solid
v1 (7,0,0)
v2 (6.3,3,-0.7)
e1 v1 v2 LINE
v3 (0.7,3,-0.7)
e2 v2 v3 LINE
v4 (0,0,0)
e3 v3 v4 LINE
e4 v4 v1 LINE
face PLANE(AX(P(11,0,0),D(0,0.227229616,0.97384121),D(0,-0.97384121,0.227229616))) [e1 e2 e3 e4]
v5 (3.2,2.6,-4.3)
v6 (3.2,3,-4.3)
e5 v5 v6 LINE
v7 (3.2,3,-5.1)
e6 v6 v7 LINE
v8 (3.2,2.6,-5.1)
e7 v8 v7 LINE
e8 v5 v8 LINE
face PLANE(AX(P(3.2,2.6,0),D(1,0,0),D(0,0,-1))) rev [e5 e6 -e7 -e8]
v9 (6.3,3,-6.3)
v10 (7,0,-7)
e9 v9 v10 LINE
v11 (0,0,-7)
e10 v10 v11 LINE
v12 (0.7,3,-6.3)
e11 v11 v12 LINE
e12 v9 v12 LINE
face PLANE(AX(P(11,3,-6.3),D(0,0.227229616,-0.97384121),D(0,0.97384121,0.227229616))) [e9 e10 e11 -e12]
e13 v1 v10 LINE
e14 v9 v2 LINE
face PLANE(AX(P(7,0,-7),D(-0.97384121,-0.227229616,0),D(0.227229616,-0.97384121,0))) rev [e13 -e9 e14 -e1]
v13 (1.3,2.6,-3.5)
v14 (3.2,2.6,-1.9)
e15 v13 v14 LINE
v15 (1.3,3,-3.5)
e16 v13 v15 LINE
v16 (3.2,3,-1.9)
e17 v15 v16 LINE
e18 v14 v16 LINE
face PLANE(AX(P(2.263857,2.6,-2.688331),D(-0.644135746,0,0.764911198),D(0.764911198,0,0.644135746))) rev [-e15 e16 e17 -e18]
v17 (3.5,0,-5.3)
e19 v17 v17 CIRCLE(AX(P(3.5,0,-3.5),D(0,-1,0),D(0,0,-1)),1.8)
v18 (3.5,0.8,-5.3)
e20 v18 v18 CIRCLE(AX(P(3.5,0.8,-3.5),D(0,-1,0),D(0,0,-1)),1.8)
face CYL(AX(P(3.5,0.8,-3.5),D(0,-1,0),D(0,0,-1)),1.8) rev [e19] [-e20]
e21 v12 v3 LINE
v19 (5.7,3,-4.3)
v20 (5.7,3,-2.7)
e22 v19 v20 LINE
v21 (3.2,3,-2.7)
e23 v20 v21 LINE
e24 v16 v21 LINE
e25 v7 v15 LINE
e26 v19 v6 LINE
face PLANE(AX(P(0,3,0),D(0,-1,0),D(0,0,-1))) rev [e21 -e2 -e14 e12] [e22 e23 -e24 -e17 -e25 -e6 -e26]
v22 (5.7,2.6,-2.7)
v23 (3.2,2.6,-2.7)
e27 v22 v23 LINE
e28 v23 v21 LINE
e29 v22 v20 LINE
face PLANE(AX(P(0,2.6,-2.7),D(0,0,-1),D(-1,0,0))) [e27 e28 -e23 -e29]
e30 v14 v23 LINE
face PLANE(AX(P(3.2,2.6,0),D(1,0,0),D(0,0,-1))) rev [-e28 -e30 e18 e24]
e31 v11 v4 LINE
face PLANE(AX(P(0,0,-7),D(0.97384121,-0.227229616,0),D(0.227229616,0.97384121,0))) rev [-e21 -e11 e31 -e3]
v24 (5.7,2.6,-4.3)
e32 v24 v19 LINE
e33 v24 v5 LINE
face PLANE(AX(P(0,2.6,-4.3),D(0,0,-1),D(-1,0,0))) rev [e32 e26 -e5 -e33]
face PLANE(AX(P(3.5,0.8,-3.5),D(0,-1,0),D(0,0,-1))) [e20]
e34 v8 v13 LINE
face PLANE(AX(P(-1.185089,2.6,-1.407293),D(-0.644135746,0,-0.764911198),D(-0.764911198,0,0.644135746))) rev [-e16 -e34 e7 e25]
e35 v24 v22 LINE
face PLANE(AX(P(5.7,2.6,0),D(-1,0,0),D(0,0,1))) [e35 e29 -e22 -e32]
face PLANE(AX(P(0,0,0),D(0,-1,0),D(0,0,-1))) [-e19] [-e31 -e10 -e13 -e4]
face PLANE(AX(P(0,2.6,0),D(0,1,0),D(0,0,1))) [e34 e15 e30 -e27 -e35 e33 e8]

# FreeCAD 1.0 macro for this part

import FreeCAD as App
import Part
import Sketcher
Q = App.Units.Quantity


def add_polygon(sketch, points):
    """Adds a closed chain of lines whose ends are joined by coincident constraints."""
    first, n = sketch.GeometryCount, len(points)
    for a, b in zip(points, points[1:] + points[:1]):
        sketch.addGeometry(Part.LineSegment(App.Vector(*a, 0), App.Vector(*b, 0)), False)
    for i in range(n):
        sketch.addConstraint(Sketcher.Constraint("Coincident", first + i, 2, first + (i + 1) % n, 1))

doc = App.newDocument("Part")
body = doc.addObject("PartDesign::Body", "Body")

sketch1 = body.newObject("Sketcher::SketchObject", "Sketch")
sketch1.AttachmentSupport = (doc.getObject("XZ_Plane"), [""])
sketch1.MapMode = "FlatFace"
add_polygon(sketch1, [(0, -7), (0, 0), (7, 0), (7, -7)])
sketch1.addConstraint(Sketcher.Constraint("Vertical", 0))
sketch1.addConstraint(Sketcher.Constraint("Horizontal", 1))
sketch1.addConstraint(Sketcher.Constraint("Vertical", 2))
sketch1.addConstraint(Sketcher.Constraint("Horizontal", 3))
sketch1.addConstraint(Sketcher.Constraint("Coincident", 0, 2, -1, 1))
sketch1.addConstraint(Sketcher.Constraint("Equal", 3, 0))
sketch1.addConstraint(Sketcher.Constraint("DistanceX", 1, 1, 1, 2, Q("7 mm")))
pad1 = body.newObject("PartDesign::Pad", "Pad")
pad1.Profile = sketch1
pad1.Length = 3
pad1.Reversed = True

sketch2 = body.newObject("Sketcher::SketchObject", "Sketch001")
sketch2.AttachmentSupport = (doc.getObject("XY_Plane"), [""])
sketch2.MapMode = "FlatFace"
add_polygon(sketch2, [(0, 0), (0.7, 3), (0, 3)])
add_polygon(sketch2, [(6.3, 3), (7, 0), (7, 3)])
sketch2.addConstraint(Sketcher.Constraint("Horizontal", 1))
sketch2.addConstraint(Sketcher.Constraint("Vertical", 2))
sketch2.addConstraint(Sketcher.Constraint("Vertical", 4))
sketch2.addConstraint(Sketcher.Constraint("Horizontal", 5))
sketch2.addConstraint(Sketcher.Constraint("Coincident", 2, 2, -1, 1))
sketch2.addConstraint(Sketcher.Constraint("PointOnObject", 3, 2, -1))
sketch2.addConstraint(Sketcher.Constraint("Horizontal", 1, 2, 4, 2))
sketch2.addConstraint(Sketcher.Constraint("Equal", 1, 5))
sketch2.addConstraint(Sketcher.Constraint("DistanceY", 2, 2, 2, 1, Q("3 mm")))
sketch2.addConstraint(Sketcher.Constraint("DistanceX", 1, 2, 1, 1, Q("0.7 mm")))
sketch2.addConstraint(Sketcher.Constraint("DistanceX", -1, 1, 3, 2, Q("7 mm")))
pocket1 = body.newObject("PartDesign::Pocket", "Pocket")
pocket1.Profile = sketch2
pocket1.Length = 7

sketch3 = body.newObject("Sketcher::SketchObject", "Sketch002")
sketch3.AttachmentSupport = (doc.getObject("YZ_Plane"), [""])
sketch3.MapMode = "FlatFace"
add_polygon(sketch3, [(0, 0), (3, -0.7), (3, 0)])
add_polygon(sketch3, [(3, -7), (3, -6.3), (0, -7)])
sketch3.addConstraint(Sketcher.Constraint("Vertical", 1))
sketch3.addConstraint(Sketcher.Constraint("Horizontal", 2))
sketch3.addConstraint(Sketcher.Constraint("Vertical", 3))
sketch3.addConstraint(Sketcher.Constraint("Horizontal", 5))
sketch3.addConstraint(Sketcher.Constraint("Coincident", 2, 2, -1, 1))
sketch3.addConstraint(Sketcher.Constraint("PointOnObject", 4, 2, -2))
sketch3.addConstraint(Sketcher.Constraint("Vertical", 1, 2, 3, 2))
sketch3.addConstraint(Sketcher.Constraint("Equal", 1, 3))
sketch3.addConstraint(Sketcher.Constraint("DistanceX", 2, 2, 2, 1, Q("3 mm")))
sketch3.addConstraint(Sketcher.Constraint("DistanceY", 1, 1, 1, 2, Q("0.7 mm")))
sketch3.addConstraint(Sketcher.Constraint("DistanceY", 4, 2, -1, 1, Q("7 mm")))
pocket2 = body.newObject("PartDesign::Pocket", "Pocket001")
pocket2.Profile = sketch3
pocket2.Length = 11
pocket2.Reversed = True

sketch4 = body.newObject("Sketcher::SketchObject", "Sketch003")
sketch4.AttachmentSupport = (doc.getObject("XZ_Plane"), [""])
sketch4.MapMode = "FlatFace"
sketch4.addGeometry(Part.Circle(App.Vector(3.5, -3.5, 0), App.Vector(0, 0, 1), 1.8), False)
sketch4.addConstraint(Sketcher.Constraint("Diameter", 0, Q("3.6 mm")))
sketch4.addConstraint(Sketcher.Constraint("DistanceX", -1, 1, 0, 3, Q("3.5 mm")))
sketch4.addConstraint(Sketcher.Constraint("DistanceY", 0, 3, -1, 1, Q("3.5 mm")))
pocket3 = body.newObject("PartDesign::Pocket", "Pocket002")
pocket3.Profile = sketch4
pocket3.Length = 0.8

sketch5 = body.newObject("Sketcher::SketchObject", "Sketch004")
sketch5.AttachmentSupport = (doc.getObject("XZ_Plane"), [""])
sketch5.MapMode = "FlatFace"
sketch5.AttachmentOffset = App.Placement(App.Vector(0, 0, -3), App.Rotation())
add_polygon(sketch5, [(3.2, -2.7), (5.7, -2.7), (5.7, -4.3), (3.2, -4.3), (3.2, -5.1), (1.3, -3.5), (3.2, -1.9)])
sketch5.addConstraint(Sketcher.Constraint("Horizontal", 0))
sketch5.addConstraint(Sketcher.Constraint("Vertical", 1))
sketch5.addConstraint(Sketcher.Constraint("Horizontal", 2))
sketch5.addConstraint(Sketcher.Constraint("Vertical", 3))
sketch5.addConstraint(Sketcher.Constraint("Vertical", 6))
sketch5.addConstraint(Sketcher.Constraint("Vertical", 3, 2, 5, 2))
sketch5.addConstraint(Sketcher.Constraint("Equal", 3, 6))
sketch5.addConstraint(Sketcher.Constraint("Equal", 4, 5))
sketch5.addConstraint(Sketcher.Constraint("DistanceX", 0, 1, 0, 2, Q("2.5 mm")))
sketch5.addConstraint(Sketcher.Constraint("DistanceY", 1, 2, 1, 1, Q("1.6 mm")))
sketch5.addConstraint(Sketcher.Constraint("DistanceY", 3, 2, 3, 1, Q("0.8 mm")))
sketch5.addConstraint(Sketcher.Constraint("DistanceX", -1, 1, 0, 2, Q("5.7 mm")))
sketch5.addConstraint(Sketcher.Constraint("DistanceY", 0, 2, -1, 1, Q("2.7 mm")))
sketch5.addConstraint(Sketcher.Constraint("DistanceX", -1, 1, 4, 2, Q("1.3 mm")))
pocket4 = body.newObject("PartDesign::Pocket", "Pocket003")
pocket4.Profile = sketch5
pocket4.Length = 0.4
pocket4.Reversed = True

doc.recompute()
